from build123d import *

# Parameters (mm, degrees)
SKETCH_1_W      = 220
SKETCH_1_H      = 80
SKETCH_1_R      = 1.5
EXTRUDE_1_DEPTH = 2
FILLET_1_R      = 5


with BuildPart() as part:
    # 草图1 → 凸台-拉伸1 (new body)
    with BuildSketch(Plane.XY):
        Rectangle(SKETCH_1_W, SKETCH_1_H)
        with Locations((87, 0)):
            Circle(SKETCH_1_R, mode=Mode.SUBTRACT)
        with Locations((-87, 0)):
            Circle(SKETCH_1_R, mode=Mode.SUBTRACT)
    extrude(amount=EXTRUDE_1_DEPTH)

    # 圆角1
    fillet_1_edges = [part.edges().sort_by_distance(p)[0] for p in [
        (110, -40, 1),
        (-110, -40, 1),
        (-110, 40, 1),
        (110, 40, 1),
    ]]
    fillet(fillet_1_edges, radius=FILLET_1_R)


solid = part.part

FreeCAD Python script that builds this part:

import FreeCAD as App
import Part
import Sketcher


def edges_at(feature, points):
    """Names of the edges that pass closest to the given points."""
    edges = feature.Shape.Edges
    near = lambda p: min(range(len(edges)), key=lambda i: edges[i].distToShape(Part.Vertex(*p))[0])
    return sorted({f"Edge{near(p) + 1}" for p in points})


def add_polygon(sketch, points):
    """Adds a closed chain of lines whose ends are joined by coincident constraints."""
    first, n = sketch.GeometryCount, len(points)
    for a, b in zip(points, points[1:] + points[:1]):
        sketch.addGeometry(Part.LineSegment(App.Vector(*a, 0), App.Vector(*b, 0)), False)
    for i in range(n):
        sketch.addConstraint(Sketcher.Constraint("Coincident", first + i, 2, first + (i + 1) % n, 1))

doc = App.newDocument("Part")
body = doc.addObject("PartDesign::Body", "Body")

# Sketch on XY plane
sketch1 = doc.addObject("Sketcher::SketchObject", "Sketch")
body.addObject(sketch1)
sketch1.AttachmentSupport = (doc.XY_Plane, [""])
sketch1.MapMode = "FlatFace"
add_polygon(sketch1, [(-110, 40), (-110, -40), (110, -40), (110, 40)])  # lines 0-3
sketch1.addGeometry(Part.Circle(App.Vector(-87, 0, 0), App.Vector(0, 0, 1), 1.5), False)  # 4
sketch1.addGeometry(Part.Circle(App.Vector(87, 0, 0), App.Vector(0, 0, 1), 1.5), False)  # 5
sketch1.addConstraint(Sketcher.Constraint("Vertical", 0))
sketch1.addConstraint(Sketcher.Constraint("Horizontal", 1))
sketch1.addConstraint(Sketcher.Constraint("Vertical", 2))
sketch1.addConstraint(Sketcher.Constraint("Horizontal", 3))
sketch1.addConstraint(Sketcher.Constraint("Equal", 4, 5))
sketch1.addConstraint(Sketcher.Constraint("Symmetric", 4, 3, 5, 3, -1, 1))
sketch1.addConstraint(Sketcher.Constraint("Symmetric", 0, 2, 2, 2, -1, 1))
sketch1.addConstraint(Sketcher.Constraint("PointOnObject", 4, 3, -1))
sketch1.addConstraint(Sketcher.Constraint("Diameter", 4, 3.0))
sketch1.addConstraint(Sketcher.Constraint("DistanceX", 1, 1, 1, 2, 220.0))
sketch1.addConstraint(Sketcher.Constraint("DistanceY", 0, 2, 0, 1, 80.0))
sketch1.addConstraint(Sketcher.Constraint("DistanceX", 4, 3, -1, 1, 87.0))
pad1 = doc.addObject("PartDesign::Pad", "Pad")
body.addObject(pad1)
pad1.Profile = sketch1
pad1.Length = 2
doc.recompute()

fillet = doc.addObject("PartDesign::Fillet", "Fillet")
body.addObject(fillet)
fillet.Base = (pad1, edges_at(pad1, [
    (110, -40, 1),
    (-110, -40, 1),
    (-110, 40, 1),
    (110, 40, 1),
]))
fillet.Radius = 5

doc.recompute()
